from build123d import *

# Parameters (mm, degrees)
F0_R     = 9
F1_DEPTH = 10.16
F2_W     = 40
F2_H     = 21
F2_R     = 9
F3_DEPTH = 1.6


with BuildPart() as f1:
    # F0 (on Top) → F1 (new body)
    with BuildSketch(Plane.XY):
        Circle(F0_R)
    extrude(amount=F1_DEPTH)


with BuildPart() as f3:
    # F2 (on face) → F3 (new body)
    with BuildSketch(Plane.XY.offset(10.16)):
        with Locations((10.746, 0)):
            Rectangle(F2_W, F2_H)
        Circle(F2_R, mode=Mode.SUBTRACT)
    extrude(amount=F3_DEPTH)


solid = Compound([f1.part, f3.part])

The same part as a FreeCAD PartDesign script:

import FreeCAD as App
import Part
import Sketcher
Q = App.Units.Quantity


def add_polygon(sketch, points):
    """Adds a closed chain of lines whose ends are joined by coincident constraints."""
    first, n = sketch.GeometryCount, len(points)
    for a, b in zip(points, points[1:] + points[:1]):
        sketch.addGeometry(Part.LineSegment(App.Vector(*a, 0), App.Vector(*b, 0)), False)
    for i in range(n):
        sketch.addConstraint(Sketcher.Constraint("Coincident", first + i, 2, first + (i + 1) % n, 1))

doc = App.newDocument("Part")
body = doc.addObject("PartDesign::Body", "Body")

# Sketch on XY plane
sketch1 = body.newObject("Sketcher::SketchObject", "Sketch")
sketch1.AttachmentSupport = (doc.getObject("XY_Plane"), [""])
sketch1.MapMode = "FlatFace"
sketch1.addGeometry(Part.Circle(App.Vector(0, 0, 0), App.Vector(0, 0, 1), 9), False)
sketch1.addConstraint(Sketcher.Constraint("Coincident", 0, 3, -1, 1))
sketch1.addConstraint(Sketcher.Constraint("Diameter", 0, Q("18 mm")))
pad1 = body.newObject("PartDesign::Pad", "Pad")
pad1.Profile = sketch1
pad1.Length = 10.16
body2 = doc.addObject("PartDesign::Body", "Body001")

# Sketch on XY plane
sketch2 = body2.newObject("Sketcher::SketchObject", "Sketch001")
sketch2.AttachmentSupport = (doc.getObject("XY_Plane001"), [""])
sketch2.MapMode = "FlatFace"
sketch2.AttachmentOffset = App.Placement(App.Vector(0, 0, 10.16), App.Rotation())
add_polygon(sketch2, [(-9, 10), (-9, -10), (31, -10), (31, 10)])  # lines 0-3
sketch2.addGeometry(Part.Circle(App.Vector(0, 0, 0), App.Vector(0, 0, 1), 9), False)  # 4
sketch2.addConstraint(Sketcher.Constraint("Vertical", 0))
sketch2.addConstraint(Sketcher.Constraint("Horizontal", 1))
sketch2.addConstraint(Sketcher.Constraint("Vertical", 2))
sketch2.addConstraint(Sketcher.Constraint("Horizontal", 3))
sketch2.addConstraint(Sketcher.Constraint("Coincident", 4, 3, -1, 1))
sketch2.addConstraint(Sketcher.Constraint("Diameter", 4, Q("18 mm")))
sketch2.addConstraint(Sketcher.Constraint("DistanceX", 1, 1, 1, 2, Q("40 mm")))
sketch2.addConstraint(Sketcher.Constraint("DistanceY", 0, 2, 0, 1, Q("21 mm")))
sketch2.addConstraint(Sketcher.Constraint("DistanceY", 0, 2, -1, 1, Q("10.5 mm")))
sketch2.addConstraint(Sketcher.Constraint("DistanceX", 0, 2, -1, 1, Q("9.254 mm")))
pad2 = body2.newObject("PartDesign::Pad", "Pad001")
pad2.Profile = sketch2
pad2.Length = 1.6

doc.recompute()
